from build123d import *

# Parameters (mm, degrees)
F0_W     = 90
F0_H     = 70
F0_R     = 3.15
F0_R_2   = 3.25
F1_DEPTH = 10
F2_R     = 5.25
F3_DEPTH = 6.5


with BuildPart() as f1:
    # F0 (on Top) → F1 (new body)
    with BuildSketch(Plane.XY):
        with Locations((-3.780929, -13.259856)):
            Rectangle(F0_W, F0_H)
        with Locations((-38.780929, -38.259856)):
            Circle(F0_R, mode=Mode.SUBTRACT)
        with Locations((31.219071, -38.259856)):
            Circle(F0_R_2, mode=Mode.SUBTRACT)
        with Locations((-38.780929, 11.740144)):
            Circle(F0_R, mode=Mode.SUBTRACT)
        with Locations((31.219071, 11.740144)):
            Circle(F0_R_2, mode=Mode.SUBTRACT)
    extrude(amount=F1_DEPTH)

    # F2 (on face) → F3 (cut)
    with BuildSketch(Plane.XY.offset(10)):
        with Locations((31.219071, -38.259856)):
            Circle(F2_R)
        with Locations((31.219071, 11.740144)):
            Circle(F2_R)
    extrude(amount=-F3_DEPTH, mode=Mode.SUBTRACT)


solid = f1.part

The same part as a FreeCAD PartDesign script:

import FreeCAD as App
import Part
import Sketcher
from FreeCAD import Vector


def add_polygon(sketch, points):
    """Adds a closed chain of lines whose ends are joined by coincident constraints."""
    first, n = sketch.GeometryCount, len(points)
    for a, b in zip(points, points[1:] + points[:1]):
        sketch.addGeometry(Part.LineSegment(App.Vector(*a, 0), App.Vector(*b, 0)), False)
    for i in range(n):
        sketch.addConstraint(Sketcher.Constraint("Coincident", first + i, 2, first + (i + 1) % n, 1))

doc = App.newDocument("Part")
body = doc.addObject("PartDesign::Body", "Body")

# Sketch on XY plane
sketch1 = body.newObject("Sketcher::SketchObject", "Sketch")
sketch1.AttachmentSupport = (doc.getObject("XY_Plane"), [""])
sketch1.MapMode = "FlatFace"
add_polygon(sketch1, [(-48.8, 21.7), (-48.8, -48.3), (41.2, -48.3), (41.2, 21.7)])  # lines 0-3
sketch1.addGeometry(Part.Circle(Vector(-38.8, -38.3, 0), Vector(0, 0, 1), 3.1), False)  # 4
sketch1.addGeometry(Part.Circle(Vector(31.2, -38.3, 0), Vector(0, 0, 1), 3.2), False)  # 5
sketch1.addGeometry(Part.Circle(Vector(-38.8, 11.7, 0), Vector(0, 0, 1), 3.1), False)  # 6
sketch1.addGeometry(Part.Circle(Vector(31.2, 11.7, 0), Vector(0, 0, 1), 3.2), False)  # 7
sketch1.addConstraint(Sketcher.Constraint("Vertical", 0))
sketch1.addConstraint(Sketcher.Constraint("Horizontal", 1))
sketch1.addConstraint(Sketcher.Constraint("Vertical", 2))
sketch1.addConstraint(Sketcher.Constraint("Horizontal", 3))
sketch1.addConstraint(Sketcher.Constraint("Equal", 4, 6))
sketch1.addConstraint(Sketcher.Constraint("Equal", 5, 7))
sketch1.addConstraint(Sketcher.Constraint("Horizontal", 4, 3, 5, 3))
sketch1.addConstraint(Sketcher.Constraint("Horizontal", 6, 3, 7, 3))
sketch1.addConstraint(Sketcher.Constraint("Vertical", 4, 3, 6, 3))
sketch1.addConstraint(Sketcher.Constraint("Vertical", 5, 3, 7, 3))
sketch1.addConstraint(Sketcher.Constraint("Diameter", 4, 6.3))
sketch1.addConstraint(Sketcher.Constraint("Diameter", 5, 6.5))
sketch1.addConstraint(Sketcher.Constraint("DistanceX", 1, 1, 1, 2, 90.0))
sketch1.addConstraint(Sketcher.Constraint("DistanceY", 0, 2, 0, 1, 70.0))
sketch1.addConstraint(Sketcher.Constraint("DistanceX", 4, 3, 5, 3, 70.0))
sketch1.addConstraint(Sketcher.Constraint("DistanceY", 4, 3, 6, 3, 50.0))
sketch1.addConstraint(Sketcher.Constraint("DistanceX", 0, 2, 4, 3, 10.0))
sketch1.addConstraint(Sketcher.Constraint("DistanceY", 0, 2, 4, 3, 10.0))
sketch1.addConstraint(Sketcher.Constraint("DistanceX", 4, 3, -1, 1, 38.780929))
sketch1.addConstraint(Sketcher.Constraint("DistanceY", 4, 3, -1, 1, 38.259856))
pad1 = body.newObject("PartDesign::Pad", "Pad")
pad1.Profile = sketch1
pad1.Length = 10

# Sketch on XY plane
sketch2 = body.newObject("Sketcher::SketchObject", "Sketch001")
sketch2.AttachmentSupport = (doc.getObject("XY_Plane"), [""])
sketch2.MapMode = "FlatFace"
sketch2.AttachmentOffset = App.Placement(Vector(0, 0, 10), App.Rotation())
sketch2.addGeometry(Part.Circle(Vector(31, -38, 0), Vector(0, 0, 1), 5), False)
sketch2.addGeometry(Part.Circle(Vector(31, 12, 0), Vector(0, 0, 1), 5), False)
sketch2.addConstraint(Sketcher.Constraint("Equal", 0, 1))
sketch2.addConstraint(Sketcher.Constraint("Vertical", 0, 3, 1, 3))
sketch2.addConstraint(Sketcher.Constraint("Diameter", 0, 10.5))
sketch2.addConstraint(Sketcher.Constraint("DistanceY", 0, 3, 1, 3, 50.0))
sketch2.addConstraint(Sketcher.Constraint("DistanceX", -1, 1, 0, 3, 31.219071))
sketch2.addConstraint(Sketcher.Constraint("DistanceY", 0, 3, -1, 1, 38.259856))
pocket1 = body.newObject("PartDesign::Pocket", "Pocket")
pocket1.Profile = sketch2
pocket1.Length = 6.5

doc.recompute()
